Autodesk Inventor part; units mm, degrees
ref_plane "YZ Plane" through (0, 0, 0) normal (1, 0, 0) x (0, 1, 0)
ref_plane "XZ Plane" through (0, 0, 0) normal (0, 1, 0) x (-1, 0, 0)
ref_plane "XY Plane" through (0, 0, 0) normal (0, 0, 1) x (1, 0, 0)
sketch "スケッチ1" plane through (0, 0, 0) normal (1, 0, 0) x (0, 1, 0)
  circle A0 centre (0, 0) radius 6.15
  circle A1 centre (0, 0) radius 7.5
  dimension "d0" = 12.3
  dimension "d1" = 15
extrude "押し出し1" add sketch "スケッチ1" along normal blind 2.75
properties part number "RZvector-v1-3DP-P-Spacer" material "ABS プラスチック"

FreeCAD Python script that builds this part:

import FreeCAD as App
import Part
import Sketcher

doc = App.newDocument("Part")
params = doc.addObject("Spreadsheet::Sheet", "Params")
for row, (alias, value) in enumerate([
    ("sketch1_diameter", "15 mm"),
    ("sketch1_diameter2", "12.3 mm"),
    ("pad1_length", "2.75 mm"),
], start=1):
    params.set(f"A{row}", alias)
    params.set(f"B{row}", "=" + value)
    params.setAlias(f"B{row}", alias)

body = doc.addObject("PartDesign::Body", "Body")

sketch1 = body.newObject("Sketcher::SketchObject", "Sketch")
sketch1.AttachmentSupport = (doc.getObject("YZ_Plane"), [""])
sketch1.MapMode = "FlatFace"
sketch1.addGeometry([
    Part.Circle(App.Vector(0, 0, 0), App.Vector(0, 0, 1), 8),
    Part.Circle(App.Vector(0, 0, 0), App.Vector(0, 0, 1), 6),
], False)
sketch1.addConstraint([
    Sketcher.Constraint("Coincident", 0, 3, -1, 1),
    Sketcher.Constraint("Coincident", 1, 3, -1, 1),
    Sketcher.Constraint("Diameter", 0, 15.0),
    Sketcher.Constraint("Diameter", 1, 12.3),
])
sketch1.setExpression("Constraints[2]", "Params.sketch1_diameter")
sketch1.setExpression("Constraints[3]", "Params.sketch1_diameter2")
pad1 = body.newObject("PartDesign::Pad", "Pad")
pad1.Profile = sketch1
pad1.setExpression("Length", "Params.pad1_length")

doc.recompute()
